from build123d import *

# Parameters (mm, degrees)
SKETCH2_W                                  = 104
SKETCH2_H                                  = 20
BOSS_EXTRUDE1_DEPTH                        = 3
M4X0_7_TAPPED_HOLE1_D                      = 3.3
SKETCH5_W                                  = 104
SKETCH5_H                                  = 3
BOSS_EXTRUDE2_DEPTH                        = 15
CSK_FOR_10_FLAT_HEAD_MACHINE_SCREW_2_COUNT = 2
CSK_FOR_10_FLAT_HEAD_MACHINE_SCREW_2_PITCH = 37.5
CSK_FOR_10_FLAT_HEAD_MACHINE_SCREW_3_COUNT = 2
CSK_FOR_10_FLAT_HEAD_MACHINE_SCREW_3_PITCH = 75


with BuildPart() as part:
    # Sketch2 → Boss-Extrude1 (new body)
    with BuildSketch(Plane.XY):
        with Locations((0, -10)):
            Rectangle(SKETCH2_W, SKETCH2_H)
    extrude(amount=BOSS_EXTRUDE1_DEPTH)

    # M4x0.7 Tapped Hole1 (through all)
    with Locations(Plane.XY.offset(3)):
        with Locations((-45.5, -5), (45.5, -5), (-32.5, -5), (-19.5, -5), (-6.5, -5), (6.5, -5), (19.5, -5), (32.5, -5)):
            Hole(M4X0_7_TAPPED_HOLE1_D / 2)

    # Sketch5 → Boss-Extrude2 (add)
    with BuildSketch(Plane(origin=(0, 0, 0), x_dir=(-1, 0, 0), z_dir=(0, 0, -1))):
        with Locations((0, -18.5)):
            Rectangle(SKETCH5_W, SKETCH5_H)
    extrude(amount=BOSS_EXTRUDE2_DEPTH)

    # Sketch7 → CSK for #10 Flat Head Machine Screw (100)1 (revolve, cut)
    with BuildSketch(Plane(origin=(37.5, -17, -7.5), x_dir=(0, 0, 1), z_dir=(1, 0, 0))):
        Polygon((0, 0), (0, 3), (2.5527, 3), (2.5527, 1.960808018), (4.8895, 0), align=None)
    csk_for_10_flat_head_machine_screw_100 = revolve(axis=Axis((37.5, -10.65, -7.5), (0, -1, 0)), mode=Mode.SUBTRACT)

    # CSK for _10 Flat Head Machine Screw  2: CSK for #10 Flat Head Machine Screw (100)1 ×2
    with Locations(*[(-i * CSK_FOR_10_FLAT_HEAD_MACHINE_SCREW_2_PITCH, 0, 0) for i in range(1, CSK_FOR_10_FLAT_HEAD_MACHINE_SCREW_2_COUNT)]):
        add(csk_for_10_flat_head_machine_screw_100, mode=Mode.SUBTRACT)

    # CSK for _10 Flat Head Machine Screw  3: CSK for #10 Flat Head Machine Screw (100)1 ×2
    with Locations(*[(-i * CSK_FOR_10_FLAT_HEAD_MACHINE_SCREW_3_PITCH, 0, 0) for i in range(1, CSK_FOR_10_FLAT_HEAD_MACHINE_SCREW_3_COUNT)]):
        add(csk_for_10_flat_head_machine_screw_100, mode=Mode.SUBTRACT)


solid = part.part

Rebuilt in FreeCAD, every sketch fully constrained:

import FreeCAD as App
import Part
import Sketcher
from FreeCAD import Vector
Q = App.Units.Quantity


def add_polygon(sketch, points):
    """Adds a closed chain of lines whose ends are joined by coincident constraints."""
    first, n = sketch.GeometryCount, len(points)
    for a, b in zip(points, points[1:] + points[:1]):
        sketch.addGeometry(Part.LineSegment(App.Vector(*a, 0), App.Vector(*b, 0)), False)
    for i in range(n):
        sketch.addConstraint(Sketcher.Constraint("Coincident", first + i, 2, first + (i + 1) % n, 1))

doc = App.newDocument("Part")
body = doc.addObject("PartDesign::Body", "Body")

# Sketch on XY plane
sketch1 = doc.addObject("Sketcher::SketchObject", "Sketch")
body.addObject(sketch1)
sketch1.AttachmentSupport = (doc.XY_Plane, [""])
sketch1.MapMode = "FlatFace"
add_polygon(sketch1, [(-52, 0), (-52, -20), (52, -20), (52, 0)])  # lines 0-3
sketch1.addConstraint([
    Sketcher.Constraint("Vertical", 0),
    Sketcher.Constraint("Horizontal", 1),
    Sketcher.Constraint("Vertical", 2),
    Sketcher.Constraint("Horizontal", 3),
    Sketcher.Constraint("Symmetric", 2, 2, 3, 2, -1, 1),
    Sketcher.Constraint("DistanceX", 1, 1, 1, 2, 104.0),
    Sketcher.Constraint("DistanceY", 0, 2, 0, 1, 20.0),
])
pad1 = doc.addObject("PartDesign::Pad", "Pad")
body.addObject(pad1)
pad1.Profile = sketch1
pad1.Length = 3

# Sketch on XY plane
sketch2 = doc.addObject("Sketcher::SketchObject", "Sketch001")
body.addObject(sketch2)
sketch2.AttachmentSupport = (doc.XY_Plane, [""])
sketch2.MapMode = "FlatFace"
sketch2.AttachmentOffset = App.Placement(Vector(0, 0, 3), App.Rotation())
sketch2.addGeometry([
    Part.Circle(Vector(-45.5, -5, 0), Vector(0, 0, 1), 1.6),  # 0
    Part.Circle(Vector(45.5, -5, 0), Vector(0, 0, 1), 1.6),  # 1
    Part.Circle(Vector(-32.5, -5, 0), Vector(0, 0, 1), 1.6),  # 2
    Part.Circle(Vector(-19.5, -5, 0), Vector(0, 0, 1), 1.6),  # 3
    Part.Circle(Vector(-6.5, -5, 0), Vector(0, 0, 1), 1.6),  # 4
    Part.Circle(Vector(6.5, -5, 0), Vector(0, 0, 1), 1.6),  # 5
    Part.Circle(Vector(19.5, -5, 0), Vector(0, 0, 1), 1.6),  # 6
    Part.Circle(Vector(32.5, -5, 0), Vector(0, 0, 1), 1.6),  # 7
], False)
sketch2.addConstraint([
    Sketcher.Constraint("Equal", 0, 1),
    Sketcher.Constraint("Equal", 1, 2),
    Sketcher.Constraint("Equal", 2, 3),
    Sketcher.Constraint("Equal", 3, 4),
    Sketcher.Constraint("Equal", 4, 5),
    Sketcher.Constraint("Equal", 5, 6),
    Sketcher.Constraint("Equal", 6, 7),
    Sketcher.Constraint("Symmetric", 0, 3, 1, 3, -2),
    Sketcher.Constraint("Symmetric", 4, 3, 5, 3, -2),
    Sketcher.Constraint("Symmetric", 3, 3, 6, 3, -2),
    Sketcher.Constraint("Symmetric", 2, 3, 7, 3, -2),
    Sketcher.Constraint("Horizontal", 1, 3, 2, 3),
    Sketcher.Constraint("Horizontal", 2, 3, 3, 3),
    Sketcher.Constraint("Horizontal", 3, 3, 4, 3),
    Sketcher.Constraint("Diameter", 0, 3.3),
    Sketcher.Constraint("DistanceY", 0, 3, -1, 1, 5.0),
    Sketcher.Constraint("DistanceX", 0, 3, 1, 3, 91.0),
    Sketcher.Constraint("DistanceX", 0, 3, 2, 3, 13.0),
    Sketcher.Constraint("DistanceX", 2, 3, 3, 3, 13.0),
    Sketcher.Constraint("DistanceX", 3, 3, 4, 3, 13.0),
])
doc.recompute()
hole = doc.addObject("PartDesign::Hole", "Hole")
body.addObject(hole)
hole.Profile = sketch2
hole.ThreadType = "None"
hole.Diameter = 3.3
hole.DepthType = "ThroughAll"

# Sketch on XY plane
sketch3 = doc.addObject("Sketcher::SketchObject", "Sketch002")
body.addObject(sketch3)
sketch3.AttachmentSupport = (doc.XY_Plane, [""])
sketch3.MapMode = "FlatFace"
add_polygon(sketch3, [(52, -17), (52, -20), (-52, -20), (-52, -17)])  # lines 0-3
sketch3.addConstraint([
    Sketcher.Constraint("Vertical", 0),
    Sketcher.Constraint("Horizontal", 1),
    Sketcher.Constraint("Vertical", 2),
    Sketcher.Constraint("Horizontal", 3),
    Sketcher.Constraint("DistanceX", 1, 2, 1, 1, 104.0),
    Sketcher.Constraint("DistanceY", 0, 2, 0, 1, 3.0),
    Sketcher.Constraint("DistanceX", -1, 1, 0, 2, 52.0),
    Sketcher.Constraint("DistanceY", 0, 2, -1, 1, 20.0),
])
pad2 = doc.addObject("PartDesign::Pad", "Pad001")
body.addObject(pad2)
pad2.Profile = sketch3
pad2.Length = 15
pad2.Reversed = True

# Sketch on YZ plane
sketch4 = doc.addObject("Sketcher::SketchObject", "Sketch003")
body.addObject(sketch4)
sketch4.AttachmentSupport = (doc.YZ_Plane, [""])
sketch4.MapMode = "FlatFace"
sketch4.AttachmentOffset = App.Placement(Vector(0, 0, 37.5), App.Rotation())
add_polygon(sketch4, [(-20, -7.5), (-17, -7.5), (-17, -2.6), (-19, -4.9), (-20, -4.9)])  # lines 0-4
sketch4.addGeometry(Part.LineSegment(Vector(-17, -7.5, 0), Vector(-20, -7.5, 0)), True)  # axis
sketch4.addConstraint([
    Sketcher.Constraint("Horizontal", 0),
    Sketcher.Constraint("Vertical", 1),
    Sketcher.Constraint("Horizontal", 3),
    Sketcher.Constraint("Vertical", 4),
    Sketcher.Constraint("Horizontal", 5),
    Sketcher.Constraint("Coincident", 5, 1, 0, 2),
    Sketcher.Constraint("Vertical", 3, 2, 5, 2),
    Sketcher.Constraint("DistanceX", 0, 1, 0, 2, 3.0),
    Sketcher.Constraint("Angle", 2, Q("-130 deg")),
    Sketcher.Constraint("DistanceX", 0, 2, -1, 1, 17.0),
    Sketcher.Constraint("DistanceY", 0, 2, -1, 1, 7.5),
    Sketcher.Constraint("DistanceY", 1, 1, 1, 2, 4.8895),
    Sketcher.Constraint("DistanceY", 4, 2, 4, 1, 2.5527),
])
groove = doc.addObject("PartDesign::Groove", "Groove")
body.addObject(groove)
groove.Profile = sketch4
groove.ReferenceAxis = (sketch4, ["Axis0"])
groove.Angle = 360
doc.recompute()

linearpattern = doc.addObject("PartDesign::LinearPattern", "LinearPattern")
body.addObject(linearpattern)
linearpattern.Originals = [groove]
linearpattern.Direction = (doc.X_Axis, [""])
linearpattern.Mode = "offset"
linearpattern.Offset = 37.5
linearpattern.Occurrences = 2
linearpattern.Reversed = True
body.Tip = linearpattern
doc.recompute()

linearpattern2 = doc.addObject("PartDesign::LinearPattern", "LinearPattern001")
body.addObject(linearpattern2)
linearpattern2.Originals = [groove]
linearpattern2.Direction = (doc.X_Axis, [""])
linearpattern2.Mode = "offset"
linearpattern2.Offset = 75
linearpattern2.Occurrences = 2
linearpattern2.Reversed = True
body.Tip = linearpattern2

doc.recompute()
